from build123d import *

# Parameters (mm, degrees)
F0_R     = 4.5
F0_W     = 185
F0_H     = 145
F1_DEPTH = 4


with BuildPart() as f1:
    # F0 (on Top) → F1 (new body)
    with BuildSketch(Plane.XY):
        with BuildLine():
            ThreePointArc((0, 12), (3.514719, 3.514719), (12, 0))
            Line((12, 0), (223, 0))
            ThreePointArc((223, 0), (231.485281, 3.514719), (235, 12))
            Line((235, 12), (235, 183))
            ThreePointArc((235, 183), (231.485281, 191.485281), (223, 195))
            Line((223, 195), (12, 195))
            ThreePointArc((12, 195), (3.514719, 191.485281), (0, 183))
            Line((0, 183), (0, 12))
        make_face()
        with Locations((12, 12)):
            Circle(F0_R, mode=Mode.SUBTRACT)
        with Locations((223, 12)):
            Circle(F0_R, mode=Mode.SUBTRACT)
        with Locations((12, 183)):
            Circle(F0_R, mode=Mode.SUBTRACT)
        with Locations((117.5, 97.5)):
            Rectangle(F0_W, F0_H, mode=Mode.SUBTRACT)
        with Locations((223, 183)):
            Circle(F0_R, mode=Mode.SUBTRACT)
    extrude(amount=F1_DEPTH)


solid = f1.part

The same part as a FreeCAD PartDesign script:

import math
import FreeCAD as App
import Part
import Sketcher
Q = App.Units.Quantity

doc = App.newDocument("Part")
body = doc.addObject("PartDesign::Body", "Body")

# Sketch on XY plane
sketch1 = body.newObject("Sketcher::SketchObject", "Sketch")
sketch1.AttachmentSupport = (doc.getObject("XY_Plane"), [""])
sketch1.MapMode = "FlatFace"
sketch1.addGeometry([
    Part.ArcOfCircle(Part.Circle(App.Vector(12, 12, 0), App.Vector(0, 0, 1), 12), math.radians(-180), math.radians(-90)),  # 0
    Part.LineSegment(App.Vector(12, 0, 0), App.Vector(223, 0, 0)),  # 1
    Part.ArcOfCircle(Part.Circle(App.Vector(223, 12, 0), App.Vector(0, 0, 1), 12), math.radians(-90), math.radians(0)),  # 2
    Part.LineSegment(App.Vector(235, 12, 0), App.Vector(235, 183, 0)),  # 3
    Part.ArcOfCircle(Part.Circle(App.Vector(223, 183, 0), App.Vector(0, 0, 1), 12), math.radians(0), math.radians(90)),  # 4
    Part.LineSegment(App.Vector(223, 195, 0), App.Vector(12, 195, 0)),  # 5
    Part.ArcOfCircle(Part.Circle(App.Vector(12, 183, 0), App.Vector(0, 0, 1), 12), math.radians(90), math.radians(180)),  # 6
    Part.LineSegment(App.Vector(0, 183, 0), App.Vector(0, 12, 0)),  # 7
    Part.Circle(App.Vector(12, 12, 0), App.Vector(0, 0, 1), 4.5),  # 8
    Part.Circle(App.Vector(223, 12, 0), App.Vector(0, 0, 1), 4.5),  # 9
    Part.Circle(App.Vector(12, 183, 0), App.Vector(0, 0, 1), 4.5),  # 10
    Part.LineSegment(App.Vector(210, 25, 0), App.Vector(25, 25, 0)),  # 11
    Part.LineSegment(App.Vector(25, 25, 0), App.Vector(25, 170, 0)),  # 12
    Part.LineSegment(App.Vector(25, 170, 0), App.Vector(210, 170, 0)),  # 13
    Part.LineSegment(App.Vector(210, 170, 0), App.Vector(210, 25, 0)),  # 14
    Part.Circle(App.Vector(223, 183, 0), App.Vector(0, 0, 1), 4.5),  # 15
], False)
sketch1.addConstraint([
    Sketcher.Constraint("Tangent", 0, 2, 1, 1),
    Sketcher.Constraint("Tangent", 1, 2, 2, 1),
    Sketcher.Constraint("Tangent", 2, 2, 3, 1),
    Sketcher.Constraint("Tangent", 3, 2, 4, 1),
    Sketcher.Constraint("Tangent", 4, 2, 5, 1),
    Sketcher.Constraint("Tangent", 5, 2, 6, 1),
    Sketcher.Constraint("Tangent", 6, 2, 7, 1),
    Sketcher.Constraint("Tangent", 7, 2, 0, 1),
    Sketcher.Constraint("Coincident", 11, 2, 12, 1),
    Sketcher.Constraint("Coincident", 12, 2, 13, 1),
    Sketcher.Constraint("Coincident", 13, 2, 14, 1),
    Sketcher.Constraint("Coincident", 14, 2, 11, 1),
    Sketcher.Constraint("Horizontal", 1),
    Sketcher.Constraint("Vertical", 3),
    Sketcher.Constraint("Horizontal", 5),
    Sketcher.Constraint("Vertical", 7),
    Sketcher.Constraint("Horizontal", 11),
    Sketcher.Constraint("Vertical", 12),
    Sketcher.Constraint("Horizontal", 13),
    Sketcher.Constraint("Vertical", 14),
    Sketcher.Constraint("Coincident", 8, 3, 0, 3),
    Sketcher.Constraint("Coincident", 9, 3, 2, 3),
    Sketcher.Constraint("Coincident", 10, 3, 6, 3),
    Sketcher.Constraint("Coincident", 15, 3, 4, 3),
    Sketcher.Constraint("Equal", 0, 2),
    Sketcher.Constraint("Equal", 2, 4),
    Sketcher.Constraint("Equal", 4, 6),
    Sketcher.Constraint("Equal", 8, 9),
    Sketcher.Constraint("Equal", 9, 10),
    Sketcher.Constraint("Equal", 10, 15),
    Sketcher.Constraint("PointOnObject", 0, 2, -1),
    Sketcher.Constraint("PointOnObject", 6, 2, -2),
    Sketcher.Constraint("Diameter", 8, Q("9 mm")),
    Sketcher.Constraint("Radius", 0, Q("12.000001 mm")),
    Sketcher.Constraint("DistanceX", 1, 1, 1, 2, Q("211 mm")),
    Sketcher.Constraint("DistanceX", 11, 2, 11, 1, Q("185 mm")),
    Sketcher.Constraint("DistanceY", 3, 1, 3, 2, Q("171 mm")),
    Sketcher.Constraint("DistanceY", 12, 1, 12, 2, Q("145 mm")),
    Sketcher.Constraint("DistanceX", -1, 1, 11, 2, Q("25 mm")),
    Sketcher.Constraint("DistanceY", -1, 1, 11, 2, Q("25 mm")),
])
pad1 = body.newObject("PartDesign::Pad", "Pad")
pad1.Profile = sketch1
pad1.Length = 4

doc.recompute()
